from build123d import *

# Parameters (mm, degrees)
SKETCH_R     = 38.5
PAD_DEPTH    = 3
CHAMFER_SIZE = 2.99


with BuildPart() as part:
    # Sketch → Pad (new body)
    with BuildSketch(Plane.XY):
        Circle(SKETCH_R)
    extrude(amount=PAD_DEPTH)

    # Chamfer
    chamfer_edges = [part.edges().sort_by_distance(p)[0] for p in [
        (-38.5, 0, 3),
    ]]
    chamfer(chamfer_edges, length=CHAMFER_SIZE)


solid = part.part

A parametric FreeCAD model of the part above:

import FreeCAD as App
import Part
import Sketcher
Q = App.Units.Quantity


def edges_at(feature, points):
    """Names of the edges that pass closest to the given points."""
    edges = feature.Shape.Edges
    near = lambda p: min(range(len(edges)), key=lambda i: edges[i].distToShape(Part.Vertex(*p))[0])
    return sorted({f"Edge{near(p) + 1}" for p in points})

doc = App.newDocument("Part")
body = doc.addObject("PartDesign::Body", "Body")

sketch1 = body.newObject("Sketcher::SketchObject", "Sketch")
sketch1.AttachmentSupport = (doc.getObject("XY_Plane"), [""])
sketch1.MapMode = "FlatFace"
sketch1.addGeometry(Part.Circle(App.Vector(0, 0, 0), App.Vector(0, 0, 1), 38), False)
sketch1.addConstraint([
    Sketcher.Constraint("Coincident", 0, 3, -1, 1),
    Sketcher.Constraint("Diameter", 0, Q("77 mm")),
])
pad1 = body.newObject("PartDesign::Pad", "Pad")
pad1.Profile = sketch1
pad1.Length = 3
doc.recompute()

chamfer = body.newObject("PartDesign::Chamfer", "Chamfer")
chamfer.Base = (pad1, edges_at(pad1, [(-38.5, 0, 3)]))
chamfer.Size = 2.99

doc.recompute()
